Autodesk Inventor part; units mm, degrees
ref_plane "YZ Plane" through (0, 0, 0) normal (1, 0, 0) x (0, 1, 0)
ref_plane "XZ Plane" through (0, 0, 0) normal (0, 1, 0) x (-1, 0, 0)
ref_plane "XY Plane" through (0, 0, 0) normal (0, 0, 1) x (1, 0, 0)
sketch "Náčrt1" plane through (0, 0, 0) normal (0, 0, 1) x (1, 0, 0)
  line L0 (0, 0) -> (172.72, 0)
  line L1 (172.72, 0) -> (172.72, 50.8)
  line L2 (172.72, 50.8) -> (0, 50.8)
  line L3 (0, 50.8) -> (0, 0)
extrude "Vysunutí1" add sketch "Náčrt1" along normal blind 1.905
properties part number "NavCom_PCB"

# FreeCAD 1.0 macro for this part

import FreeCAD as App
import Part
import Sketcher

V = App.Vector
Q = App.Units.Quantity

doc = App.newDocument("Part")
body = doc.addObject("PartDesign::Body", "Body")

sketch1 = doc.addObject("Sketcher::SketchObject", "Sketch")
body.addObject(sketch1)
sketch1.AttachmentSupport = (doc.XY_Plane, [""])
sketch1.MapMode = "FlatFace"
sketch1.addGeometry([
    Part.LineSegment(V(0, 51, 0), V(0, 0, 0)),
    Part.LineSegment(V(0, 0, 0), V(173, 0, 0)),
    Part.LineSegment(V(173, 0, 0), V(173, 51, 0)),
    Part.LineSegment(V(173, 51, 0), V(0, 51, 0)),
], False)
sketch1.addConstraint([
    Sketcher.Constraint("Coincident", 0, 2, 1, 1),
    Sketcher.Constraint("Coincident", 1, 2, 2, 1),
    Sketcher.Constraint("Coincident", 2, 2, 3, 1),
    Sketcher.Constraint("Coincident", 3, 2, 0, 1),
    Sketcher.Constraint("Vertical", 0),
    Sketcher.Constraint("Horizontal", 1),
    Sketcher.Constraint("Vertical", 2),
    Sketcher.Constraint("Horizontal", 3),
    Sketcher.Constraint("Coincident", 0, 2, -1, 1),
    Sketcher.Constraint("DistanceY", 0, 2, 0, 1, Q("2 in")),
    Sketcher.Constraint("DistanceX", 1, 1, 1, 2, Q("6.8 in")),
])
pad1 = doc.addObject("PartDesign::Pad", "Pad")
body.addObject(pad1)
pad1.Profile = sketch1
pad1.Length = Q("0.075 in")

doc.recompute()
